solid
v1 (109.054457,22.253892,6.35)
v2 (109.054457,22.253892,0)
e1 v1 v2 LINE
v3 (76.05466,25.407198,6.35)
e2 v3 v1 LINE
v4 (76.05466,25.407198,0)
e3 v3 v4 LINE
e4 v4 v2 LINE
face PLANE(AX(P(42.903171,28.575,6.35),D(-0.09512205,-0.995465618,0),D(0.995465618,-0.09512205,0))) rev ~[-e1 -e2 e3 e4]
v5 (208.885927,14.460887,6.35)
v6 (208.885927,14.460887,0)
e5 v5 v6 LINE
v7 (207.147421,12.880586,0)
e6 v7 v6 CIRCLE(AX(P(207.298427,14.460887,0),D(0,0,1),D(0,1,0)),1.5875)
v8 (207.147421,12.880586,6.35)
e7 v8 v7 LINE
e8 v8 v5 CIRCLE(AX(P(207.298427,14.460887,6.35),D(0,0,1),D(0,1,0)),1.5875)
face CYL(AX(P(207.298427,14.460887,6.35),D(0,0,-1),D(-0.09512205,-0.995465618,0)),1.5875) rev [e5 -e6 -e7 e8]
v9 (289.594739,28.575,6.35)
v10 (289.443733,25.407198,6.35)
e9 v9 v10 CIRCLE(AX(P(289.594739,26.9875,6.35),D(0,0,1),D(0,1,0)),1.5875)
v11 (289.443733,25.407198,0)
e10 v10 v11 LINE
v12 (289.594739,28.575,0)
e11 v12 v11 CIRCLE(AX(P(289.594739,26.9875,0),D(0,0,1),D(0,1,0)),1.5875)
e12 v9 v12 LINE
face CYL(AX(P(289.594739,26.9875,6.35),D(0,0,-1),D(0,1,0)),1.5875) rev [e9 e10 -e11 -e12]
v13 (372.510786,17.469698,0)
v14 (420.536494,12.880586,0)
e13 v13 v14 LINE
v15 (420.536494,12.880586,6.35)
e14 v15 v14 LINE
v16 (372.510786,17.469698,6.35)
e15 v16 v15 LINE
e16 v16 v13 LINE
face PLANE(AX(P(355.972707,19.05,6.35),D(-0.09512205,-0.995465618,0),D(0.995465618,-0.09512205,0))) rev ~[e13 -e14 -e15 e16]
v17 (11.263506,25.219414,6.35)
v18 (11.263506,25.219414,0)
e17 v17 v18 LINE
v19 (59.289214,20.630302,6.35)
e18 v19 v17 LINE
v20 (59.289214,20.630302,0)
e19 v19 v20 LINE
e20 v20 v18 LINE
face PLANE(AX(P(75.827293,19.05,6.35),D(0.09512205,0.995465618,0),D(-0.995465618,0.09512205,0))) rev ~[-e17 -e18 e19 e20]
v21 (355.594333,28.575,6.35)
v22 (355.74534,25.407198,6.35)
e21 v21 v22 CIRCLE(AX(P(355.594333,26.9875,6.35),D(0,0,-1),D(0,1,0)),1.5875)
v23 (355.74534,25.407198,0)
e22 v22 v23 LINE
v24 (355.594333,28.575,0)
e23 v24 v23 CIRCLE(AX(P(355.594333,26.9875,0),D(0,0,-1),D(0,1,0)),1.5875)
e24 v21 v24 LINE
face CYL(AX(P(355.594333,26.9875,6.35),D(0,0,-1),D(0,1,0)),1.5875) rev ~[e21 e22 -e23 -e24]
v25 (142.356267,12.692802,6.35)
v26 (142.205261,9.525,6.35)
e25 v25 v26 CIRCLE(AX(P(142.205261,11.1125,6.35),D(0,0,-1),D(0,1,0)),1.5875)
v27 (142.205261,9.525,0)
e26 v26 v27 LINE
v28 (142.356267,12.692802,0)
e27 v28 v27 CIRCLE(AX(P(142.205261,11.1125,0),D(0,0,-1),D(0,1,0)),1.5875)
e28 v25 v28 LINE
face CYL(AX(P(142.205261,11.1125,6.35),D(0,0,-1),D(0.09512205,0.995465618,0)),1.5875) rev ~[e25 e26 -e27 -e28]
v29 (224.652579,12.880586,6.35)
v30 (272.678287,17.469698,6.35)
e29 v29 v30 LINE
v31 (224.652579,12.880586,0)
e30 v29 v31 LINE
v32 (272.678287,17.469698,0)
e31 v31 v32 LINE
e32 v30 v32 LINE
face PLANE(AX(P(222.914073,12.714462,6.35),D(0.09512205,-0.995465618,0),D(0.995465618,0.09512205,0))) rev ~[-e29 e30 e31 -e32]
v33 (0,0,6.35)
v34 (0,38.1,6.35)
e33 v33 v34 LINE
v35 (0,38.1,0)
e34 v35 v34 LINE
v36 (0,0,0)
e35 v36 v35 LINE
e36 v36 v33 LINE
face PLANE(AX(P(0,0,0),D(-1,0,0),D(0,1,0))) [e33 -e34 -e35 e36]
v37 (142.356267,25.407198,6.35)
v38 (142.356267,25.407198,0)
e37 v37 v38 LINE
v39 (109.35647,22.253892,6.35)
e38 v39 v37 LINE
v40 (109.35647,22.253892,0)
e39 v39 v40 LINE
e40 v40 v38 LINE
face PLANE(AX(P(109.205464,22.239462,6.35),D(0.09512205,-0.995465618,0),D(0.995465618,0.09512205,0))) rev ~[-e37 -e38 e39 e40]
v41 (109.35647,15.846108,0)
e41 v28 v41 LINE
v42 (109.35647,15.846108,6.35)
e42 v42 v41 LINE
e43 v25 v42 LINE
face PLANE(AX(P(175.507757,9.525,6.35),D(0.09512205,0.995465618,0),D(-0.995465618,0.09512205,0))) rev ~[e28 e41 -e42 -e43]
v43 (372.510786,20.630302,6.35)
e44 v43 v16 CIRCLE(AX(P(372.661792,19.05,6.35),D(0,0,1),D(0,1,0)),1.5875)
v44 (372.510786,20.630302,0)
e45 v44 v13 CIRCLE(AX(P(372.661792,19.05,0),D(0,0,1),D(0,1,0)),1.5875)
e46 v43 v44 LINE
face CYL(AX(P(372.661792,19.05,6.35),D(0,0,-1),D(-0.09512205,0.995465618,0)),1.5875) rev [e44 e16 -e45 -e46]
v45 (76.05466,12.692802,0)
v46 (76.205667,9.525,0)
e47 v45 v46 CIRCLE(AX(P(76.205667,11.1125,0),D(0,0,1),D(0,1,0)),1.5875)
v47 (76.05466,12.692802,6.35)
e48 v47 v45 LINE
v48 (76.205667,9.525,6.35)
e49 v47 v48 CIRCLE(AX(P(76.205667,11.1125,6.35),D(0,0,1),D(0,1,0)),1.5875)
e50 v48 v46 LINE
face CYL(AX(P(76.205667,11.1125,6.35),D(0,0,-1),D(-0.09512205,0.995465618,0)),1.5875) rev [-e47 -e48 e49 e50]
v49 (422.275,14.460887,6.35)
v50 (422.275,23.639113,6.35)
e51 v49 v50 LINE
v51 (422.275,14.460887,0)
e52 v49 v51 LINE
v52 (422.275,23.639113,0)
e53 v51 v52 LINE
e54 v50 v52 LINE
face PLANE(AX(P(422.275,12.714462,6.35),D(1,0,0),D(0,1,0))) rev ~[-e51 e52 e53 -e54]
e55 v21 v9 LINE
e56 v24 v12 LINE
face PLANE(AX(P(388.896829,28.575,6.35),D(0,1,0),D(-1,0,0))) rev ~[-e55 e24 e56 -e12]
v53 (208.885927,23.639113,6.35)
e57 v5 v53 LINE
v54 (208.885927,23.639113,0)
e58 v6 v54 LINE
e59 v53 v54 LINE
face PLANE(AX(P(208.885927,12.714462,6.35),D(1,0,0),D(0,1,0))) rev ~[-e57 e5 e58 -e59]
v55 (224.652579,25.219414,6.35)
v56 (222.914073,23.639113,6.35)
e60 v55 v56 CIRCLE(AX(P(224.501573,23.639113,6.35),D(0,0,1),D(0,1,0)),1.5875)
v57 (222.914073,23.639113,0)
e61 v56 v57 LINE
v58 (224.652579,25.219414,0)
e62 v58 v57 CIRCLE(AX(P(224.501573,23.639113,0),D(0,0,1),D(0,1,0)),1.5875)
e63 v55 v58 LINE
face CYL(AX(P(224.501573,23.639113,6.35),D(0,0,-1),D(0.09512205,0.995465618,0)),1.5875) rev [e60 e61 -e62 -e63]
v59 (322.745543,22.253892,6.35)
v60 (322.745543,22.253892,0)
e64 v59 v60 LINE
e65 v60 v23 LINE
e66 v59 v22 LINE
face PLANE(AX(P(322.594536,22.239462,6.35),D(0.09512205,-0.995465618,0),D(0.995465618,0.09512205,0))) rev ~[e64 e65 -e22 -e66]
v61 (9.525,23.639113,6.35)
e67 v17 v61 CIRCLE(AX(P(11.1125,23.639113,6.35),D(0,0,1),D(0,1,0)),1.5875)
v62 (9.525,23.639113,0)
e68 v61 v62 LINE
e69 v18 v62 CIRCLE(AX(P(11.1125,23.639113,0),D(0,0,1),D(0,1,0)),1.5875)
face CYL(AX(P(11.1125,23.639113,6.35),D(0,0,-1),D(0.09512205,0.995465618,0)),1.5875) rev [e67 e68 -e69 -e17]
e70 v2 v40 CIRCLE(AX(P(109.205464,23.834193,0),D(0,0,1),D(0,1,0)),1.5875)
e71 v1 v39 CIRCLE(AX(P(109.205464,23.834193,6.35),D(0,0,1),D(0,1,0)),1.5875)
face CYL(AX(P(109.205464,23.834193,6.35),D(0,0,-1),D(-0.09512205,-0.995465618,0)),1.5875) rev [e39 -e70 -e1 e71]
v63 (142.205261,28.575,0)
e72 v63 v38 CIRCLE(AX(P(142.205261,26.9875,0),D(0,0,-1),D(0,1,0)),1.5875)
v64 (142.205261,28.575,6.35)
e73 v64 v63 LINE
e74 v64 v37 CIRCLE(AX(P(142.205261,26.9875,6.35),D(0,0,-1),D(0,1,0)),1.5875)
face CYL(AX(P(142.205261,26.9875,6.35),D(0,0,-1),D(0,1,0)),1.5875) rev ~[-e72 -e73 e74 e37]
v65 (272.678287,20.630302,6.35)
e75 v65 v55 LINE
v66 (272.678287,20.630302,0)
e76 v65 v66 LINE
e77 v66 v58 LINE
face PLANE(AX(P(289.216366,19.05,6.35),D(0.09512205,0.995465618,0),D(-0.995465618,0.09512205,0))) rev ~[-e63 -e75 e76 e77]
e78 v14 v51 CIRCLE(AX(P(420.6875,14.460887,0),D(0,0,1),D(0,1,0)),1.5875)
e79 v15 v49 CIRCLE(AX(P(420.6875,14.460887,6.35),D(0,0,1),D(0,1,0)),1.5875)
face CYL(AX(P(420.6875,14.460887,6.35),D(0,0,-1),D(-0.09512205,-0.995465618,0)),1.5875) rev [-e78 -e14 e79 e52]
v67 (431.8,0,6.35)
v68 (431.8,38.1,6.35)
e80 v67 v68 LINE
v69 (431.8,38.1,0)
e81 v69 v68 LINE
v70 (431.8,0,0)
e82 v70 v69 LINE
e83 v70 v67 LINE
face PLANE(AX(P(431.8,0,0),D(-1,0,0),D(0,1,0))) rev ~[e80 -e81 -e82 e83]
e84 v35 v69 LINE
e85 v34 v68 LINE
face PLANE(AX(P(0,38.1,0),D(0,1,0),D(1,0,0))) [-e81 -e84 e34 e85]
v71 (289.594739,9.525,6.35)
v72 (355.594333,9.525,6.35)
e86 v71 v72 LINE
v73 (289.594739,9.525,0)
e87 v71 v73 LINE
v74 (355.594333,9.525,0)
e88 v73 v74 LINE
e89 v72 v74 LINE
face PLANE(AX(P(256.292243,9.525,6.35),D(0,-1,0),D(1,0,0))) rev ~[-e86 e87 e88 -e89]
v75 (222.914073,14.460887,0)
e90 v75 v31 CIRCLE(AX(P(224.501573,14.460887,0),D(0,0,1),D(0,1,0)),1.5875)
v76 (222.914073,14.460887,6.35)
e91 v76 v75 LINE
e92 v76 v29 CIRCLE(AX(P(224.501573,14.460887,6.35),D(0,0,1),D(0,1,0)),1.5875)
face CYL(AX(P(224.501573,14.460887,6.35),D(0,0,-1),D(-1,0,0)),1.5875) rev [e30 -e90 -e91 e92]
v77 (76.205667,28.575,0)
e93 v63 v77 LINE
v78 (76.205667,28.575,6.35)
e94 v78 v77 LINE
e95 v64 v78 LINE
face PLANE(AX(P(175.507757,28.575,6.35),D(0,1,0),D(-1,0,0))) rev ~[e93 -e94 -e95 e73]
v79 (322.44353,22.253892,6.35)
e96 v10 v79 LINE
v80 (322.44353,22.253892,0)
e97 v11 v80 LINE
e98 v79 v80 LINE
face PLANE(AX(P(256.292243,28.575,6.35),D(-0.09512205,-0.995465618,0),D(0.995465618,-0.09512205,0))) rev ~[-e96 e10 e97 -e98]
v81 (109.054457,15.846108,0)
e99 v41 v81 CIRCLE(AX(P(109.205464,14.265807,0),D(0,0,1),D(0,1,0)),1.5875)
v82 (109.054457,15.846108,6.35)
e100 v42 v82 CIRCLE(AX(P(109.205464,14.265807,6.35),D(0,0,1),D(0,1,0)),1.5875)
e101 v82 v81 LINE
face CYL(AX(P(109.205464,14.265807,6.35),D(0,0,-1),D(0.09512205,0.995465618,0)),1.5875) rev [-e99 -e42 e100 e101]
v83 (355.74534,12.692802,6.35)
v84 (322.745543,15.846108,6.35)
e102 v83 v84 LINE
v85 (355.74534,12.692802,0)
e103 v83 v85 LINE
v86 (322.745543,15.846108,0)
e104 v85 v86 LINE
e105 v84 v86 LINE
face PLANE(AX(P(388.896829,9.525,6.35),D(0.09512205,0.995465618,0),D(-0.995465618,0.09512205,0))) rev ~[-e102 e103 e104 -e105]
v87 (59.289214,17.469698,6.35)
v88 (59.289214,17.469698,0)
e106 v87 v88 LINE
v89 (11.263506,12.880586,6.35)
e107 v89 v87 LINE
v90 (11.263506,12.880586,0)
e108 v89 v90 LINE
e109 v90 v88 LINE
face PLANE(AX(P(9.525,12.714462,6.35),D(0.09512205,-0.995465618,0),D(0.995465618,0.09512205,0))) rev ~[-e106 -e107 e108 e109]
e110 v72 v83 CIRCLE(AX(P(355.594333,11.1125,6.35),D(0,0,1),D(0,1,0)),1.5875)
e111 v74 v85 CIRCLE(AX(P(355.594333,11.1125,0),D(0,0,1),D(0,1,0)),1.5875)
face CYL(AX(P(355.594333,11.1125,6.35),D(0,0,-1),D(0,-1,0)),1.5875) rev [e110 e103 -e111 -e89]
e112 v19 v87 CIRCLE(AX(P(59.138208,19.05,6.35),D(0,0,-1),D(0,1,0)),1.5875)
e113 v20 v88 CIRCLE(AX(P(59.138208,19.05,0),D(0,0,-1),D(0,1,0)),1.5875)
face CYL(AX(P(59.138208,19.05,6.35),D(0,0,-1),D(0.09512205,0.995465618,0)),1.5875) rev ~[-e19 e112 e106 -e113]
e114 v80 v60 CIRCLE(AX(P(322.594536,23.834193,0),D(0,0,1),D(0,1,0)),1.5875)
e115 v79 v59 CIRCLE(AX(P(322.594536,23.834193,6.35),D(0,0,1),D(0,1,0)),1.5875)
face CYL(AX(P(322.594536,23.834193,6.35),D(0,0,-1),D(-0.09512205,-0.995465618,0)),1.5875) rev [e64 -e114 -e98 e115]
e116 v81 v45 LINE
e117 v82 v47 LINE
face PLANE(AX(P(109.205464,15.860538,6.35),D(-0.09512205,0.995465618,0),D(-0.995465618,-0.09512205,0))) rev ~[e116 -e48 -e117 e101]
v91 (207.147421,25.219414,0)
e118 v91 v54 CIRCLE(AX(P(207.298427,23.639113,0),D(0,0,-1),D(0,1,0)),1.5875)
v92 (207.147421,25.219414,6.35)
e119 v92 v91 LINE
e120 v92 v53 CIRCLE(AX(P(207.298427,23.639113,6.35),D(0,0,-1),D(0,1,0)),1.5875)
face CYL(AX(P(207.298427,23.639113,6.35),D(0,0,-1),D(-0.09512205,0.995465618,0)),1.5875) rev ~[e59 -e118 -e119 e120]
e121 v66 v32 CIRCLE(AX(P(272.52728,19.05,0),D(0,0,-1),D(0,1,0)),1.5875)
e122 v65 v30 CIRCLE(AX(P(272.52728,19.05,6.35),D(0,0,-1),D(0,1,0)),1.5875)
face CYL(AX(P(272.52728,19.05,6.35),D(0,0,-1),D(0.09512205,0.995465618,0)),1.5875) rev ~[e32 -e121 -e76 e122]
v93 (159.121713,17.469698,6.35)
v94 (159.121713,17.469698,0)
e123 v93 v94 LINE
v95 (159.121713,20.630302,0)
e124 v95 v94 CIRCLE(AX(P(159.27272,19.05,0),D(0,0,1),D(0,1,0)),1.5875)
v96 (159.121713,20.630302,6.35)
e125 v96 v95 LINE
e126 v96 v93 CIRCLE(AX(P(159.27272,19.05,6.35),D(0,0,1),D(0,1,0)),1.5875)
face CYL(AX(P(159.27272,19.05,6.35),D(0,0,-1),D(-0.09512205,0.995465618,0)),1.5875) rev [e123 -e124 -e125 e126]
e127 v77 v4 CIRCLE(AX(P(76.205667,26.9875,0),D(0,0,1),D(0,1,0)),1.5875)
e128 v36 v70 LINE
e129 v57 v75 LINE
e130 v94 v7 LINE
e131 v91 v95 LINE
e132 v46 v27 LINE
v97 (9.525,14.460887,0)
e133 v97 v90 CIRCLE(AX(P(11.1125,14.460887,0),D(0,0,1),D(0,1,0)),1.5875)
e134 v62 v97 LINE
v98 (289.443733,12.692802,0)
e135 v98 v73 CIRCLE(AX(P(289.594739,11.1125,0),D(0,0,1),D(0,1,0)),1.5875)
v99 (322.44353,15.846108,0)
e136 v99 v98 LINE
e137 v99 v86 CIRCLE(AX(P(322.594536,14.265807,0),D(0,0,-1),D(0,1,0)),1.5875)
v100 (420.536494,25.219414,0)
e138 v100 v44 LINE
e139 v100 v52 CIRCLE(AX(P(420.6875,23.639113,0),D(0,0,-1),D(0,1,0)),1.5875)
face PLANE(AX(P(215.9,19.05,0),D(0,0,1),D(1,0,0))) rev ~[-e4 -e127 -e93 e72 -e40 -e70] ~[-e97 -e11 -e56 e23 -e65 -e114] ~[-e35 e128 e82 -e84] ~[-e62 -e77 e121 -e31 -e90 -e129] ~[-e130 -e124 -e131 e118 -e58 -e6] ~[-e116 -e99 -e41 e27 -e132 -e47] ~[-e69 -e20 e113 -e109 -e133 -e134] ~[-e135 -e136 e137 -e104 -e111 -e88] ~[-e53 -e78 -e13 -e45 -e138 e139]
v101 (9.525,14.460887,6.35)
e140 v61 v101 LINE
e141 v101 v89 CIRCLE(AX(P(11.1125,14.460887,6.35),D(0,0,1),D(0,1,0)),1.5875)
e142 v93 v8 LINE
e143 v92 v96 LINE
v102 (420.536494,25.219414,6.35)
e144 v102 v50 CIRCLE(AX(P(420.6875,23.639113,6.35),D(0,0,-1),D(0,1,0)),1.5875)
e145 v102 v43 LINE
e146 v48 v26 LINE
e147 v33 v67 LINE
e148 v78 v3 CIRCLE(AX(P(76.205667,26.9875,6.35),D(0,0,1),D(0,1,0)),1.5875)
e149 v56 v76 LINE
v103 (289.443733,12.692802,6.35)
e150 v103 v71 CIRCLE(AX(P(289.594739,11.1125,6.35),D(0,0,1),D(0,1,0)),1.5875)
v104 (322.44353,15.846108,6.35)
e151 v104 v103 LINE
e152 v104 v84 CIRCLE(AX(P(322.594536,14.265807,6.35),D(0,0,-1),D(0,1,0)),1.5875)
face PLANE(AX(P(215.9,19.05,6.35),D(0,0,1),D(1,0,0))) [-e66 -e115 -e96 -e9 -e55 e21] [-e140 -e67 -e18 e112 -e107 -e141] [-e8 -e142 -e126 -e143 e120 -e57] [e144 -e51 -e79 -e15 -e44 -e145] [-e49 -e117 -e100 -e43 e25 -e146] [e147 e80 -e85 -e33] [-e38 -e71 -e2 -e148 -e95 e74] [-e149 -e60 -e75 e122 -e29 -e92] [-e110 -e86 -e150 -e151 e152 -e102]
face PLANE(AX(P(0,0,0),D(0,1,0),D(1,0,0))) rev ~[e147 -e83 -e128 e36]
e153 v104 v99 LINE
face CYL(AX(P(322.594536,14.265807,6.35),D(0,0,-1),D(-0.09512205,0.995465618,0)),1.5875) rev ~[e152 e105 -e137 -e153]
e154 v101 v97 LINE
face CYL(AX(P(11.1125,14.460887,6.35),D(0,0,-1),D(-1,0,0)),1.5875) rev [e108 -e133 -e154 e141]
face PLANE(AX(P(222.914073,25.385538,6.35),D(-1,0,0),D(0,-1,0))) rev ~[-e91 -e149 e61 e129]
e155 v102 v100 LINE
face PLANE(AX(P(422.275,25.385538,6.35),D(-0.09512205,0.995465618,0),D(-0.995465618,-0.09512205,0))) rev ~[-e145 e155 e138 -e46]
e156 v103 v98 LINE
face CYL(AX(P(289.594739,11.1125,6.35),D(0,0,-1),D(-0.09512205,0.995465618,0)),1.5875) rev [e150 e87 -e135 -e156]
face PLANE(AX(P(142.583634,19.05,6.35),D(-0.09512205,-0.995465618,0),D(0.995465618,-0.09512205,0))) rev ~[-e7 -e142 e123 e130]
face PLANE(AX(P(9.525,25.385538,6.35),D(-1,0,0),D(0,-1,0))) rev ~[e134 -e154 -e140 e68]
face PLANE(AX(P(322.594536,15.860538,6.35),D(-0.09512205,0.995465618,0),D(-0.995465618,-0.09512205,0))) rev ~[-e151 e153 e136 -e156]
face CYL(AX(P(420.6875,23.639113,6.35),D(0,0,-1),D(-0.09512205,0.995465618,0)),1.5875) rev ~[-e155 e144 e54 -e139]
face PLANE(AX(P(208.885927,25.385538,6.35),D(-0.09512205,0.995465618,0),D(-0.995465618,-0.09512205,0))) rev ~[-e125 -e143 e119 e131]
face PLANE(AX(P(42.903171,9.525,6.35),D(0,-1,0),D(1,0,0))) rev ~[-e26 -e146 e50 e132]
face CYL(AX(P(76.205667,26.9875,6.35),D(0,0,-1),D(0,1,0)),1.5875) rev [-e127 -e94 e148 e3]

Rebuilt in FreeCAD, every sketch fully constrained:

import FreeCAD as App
import Part
import Sketcher
from FreeCAD import Vector
Q = App.Units.Quantity


def edges_at(feature, points):
    """Names of the edges that pass closest to the given points."""
    edges = feature.Shape.Edges
    near = lambda p: min(range(len(edges)), key=lambda i: edges[i].distToShape(Part.Vertex(*p))[0])
    return sorted({f"Edge{near(p) + 1}" for p in points})


def add_polygon(sketch, points):
    """Adds a closed chain of lines whose ends are joined by coincident constraints."""
    first, n = sketch.GeometryCount, len(points)
    for a, b in zip(points, points[1:] + points[:1]):
        sketch.addGeometry(Part.LineSegment(App.Vector(*a, 0), App.Vector(*b, 0)), False)
    for i in range(n):
        sketch.addConstraint(Sketcher.Constraint("Coincident", first + i, 2, first + (i + 1) % n, 1))

doc = App.newDocument("Part")
body = doc.addObject("PartDesign::Body", "Body")

# Sketch on XY plane
sketch1 = body.newObject("Sketcher::SketchObject", "Sketch")
sketch1.AttachmentSupport = (doc.getObject("XY_Plane"), [""])
sketch1.MapMode = "FlatFace"
add_polygon(sketch1, [(0, 38), (0, 0), (432, 0), (432, 38)])  # lines 0-3
sketch1.addConstraint(Sketcher.Constraint("Vertical", 0))
sketch1.addConstraint(Sketcher.Constraint("Horizontal", 1))
sketch1.addConstraint(Sketcher.Constraint("Vertical", 2))
sketch1.addConstraint(Sketcher.Constraint("Horizontal", 3))
sketch1.addConstraint(Sketcher.Constraint("Coincident", 0, 2, -1, 1))
sketch1.addConstraint(Sketcher.Constraint("DistanceX", 1, 1, 1, 2, Q("17 in")))
sketch1.addConstraint(Sketcher.Constraint("DistanceY", 0, 2, 0, 1, Q("1.5 in")))
pad1 = body.newObject("PartDesign::Pad", "Pad")
pad1.Profile = sketch1
pad1.Length = Q("0.25 in")

# Sketch on XY plane
sketch2 = body.newObject("Sketcher::SketchObject", "Sketch001")
sketch2.AttachmentSupport = (doc.getObject("XY_Plane"), [""])
sketch2.MapMode = "FlatFace"
sketch2.AttachmentOffset = App.Placement(Vector(0, 0, 0.25 * 25.4), App.Rotation())
add_polygon(sketch2, [(76, 19), (10, 25), (10, 13)])  # lines 0-2
add_polygon(sketch2, [(176, 29), (43, 29), (109, 22)])  # lines 3-5
add_polygon(sketch2, [(176, 10), (109, 16), (43, 10)])  # lines 6-8
add_polygon(sketch2, [(209, 25), (143, 19), (209, 13)])  # lines 9-11
add_polygon(sketch2, [(289, 19), (223, 25), (223, 13)])  # lines 12-14
add_polygon(sketch2, [(389, 29), (256, 29), (323, 22)])  # lines 15-17
add_polygon(sketch2, [(323, 16), (256, 10), (389, 10)])  # lines 18-20
add_polygon(sketch2, [(422, 25), (356, 19), (422, 13)])  # lines 21-23
sketch2.addConstraint(Sketcher.Constraint("Vertical", 1))
sketch2.addConstraint(Sketcher.Constraint("Horizontal", 3))
sketch2.addConstraint(Sketcher.Constraint("Horizontal", 8))
sketch2.addConstraint(Sketcher.Constraint("Vertical", 11))
sketch2.addConstraint(Sketcher.Constraint("Vertical", 13))
sketch2.addConstraint(Sketcher.Constraint("Horizontal", 15))
sketch2.addConstraint(Sketcher.Constraint("Horizontal", 19))
sketch2.addConstraint(Sketcher.Constraint("Vertical", 23))
sketch2.addConstraint(Sketcher.Constraint("Parallel", 0, 4))
sketch2.addConstraint(Sketcher.Constraint("Parallel", 2, 5))
sketch2.addConstraint(Sketcher.Constraint("Parallel", 4, 6))
sketch2.addConstraint(Sketcher.Constraint("Parallel", 5, 7))
sketch2.addConstraint(Sketcher.Constraint("Parallel", 7, 9))
sketch2.addConstraint(Sketcher.Constraint("Parallel", 6, 10))
sketch2.addConstraint(Sketcher.Constraint("Parallel", 10, 12))
sketch2.addConstraint(Sketcher.Constraint("Parallel", 9, 14))
sketch2.addConstraint(Sketcher.Constraint("Parallel", 12, 16))
sketch2.addConstraint(Sketcher.Constraint("Parallel", 14, 17))
sketch2.addConstraint(Sketcher.Constraint("Parallel", 17, 18))
sketch2.addConstraint(Sketcher.Constraint("Parallel", 16, 20))
sketch2.addConstraint(Sketcher.Constraint("Parallel", 18, 21))
sketch2.addConstraint(Sketcher.Constraint("Parallel", 20, 22))
sketch2.addConstraint(Sketcher.Constraint("Horizontal", 2, 2, 9, 2))
sketch2.addConstraint(Sketcher.Constraint("Horizontal", 1, 2, 10, 2))
sketch2.addConstraint(Sketcher.Constraint("Horizontal", 0, 2, 11, 2))
sketch2.addConstraint(Sketcher.Constraint("Horizontal", 11, 2, 12, 2))
sketch2.addConstraint(Sketcher.Constraint("Horizontal", 10, 2, 13, 2))
sketch2.addConstraint(Sketcher.Constraint("Horizontal", 5, 2, 15, 2))
sketch2.addConstraint(Sketcher.Constraint("Horizontal", 4, 2, 16, 2))
sketch2.addConstraint(Sketcher.Constraint("Horizontal", 8, 2, 18, 2))
sketch2.addConstraint(Sketcher.Constraint("Horizontal", 6, 2, 20, 2))
sketch2.addConstraint(Sketcher.Constraint("Horizontal", 14, 2, 21, 2))
sketch2.addConstraint(Sketcher.Constraint("Horizontal", 13, 2, 22, 2))
sketch2.addConstraint(Sketcher.Constraint("Vertical", 4, 2, 6, 2))
sketch2.addConstraint(Sketcher.Constraint("Vertical", 3, 2, 7, 2))
sketch2.addConstraint(Sketcher.Constraint("Vertical", 15, 2, 18, 2))
sketch2.addConstraint(Sketcher.Constraint("Equal", 2, 4))
sketch2.addConstraint(Sketcher.Constraint("DistanceY", -1, 1, 2, 2, Q("0.75 in")))
sketch2.addConstraint(Sketcher.Constraint("DistanceY", 7, 2, 3, 2, Q("0.75 in")))
sketch2.addConstraint(Sketcher.Constraint("DistanceX", -1, 1, 0, 2, Q("0.375 in")))
sketch2.addConstraint(Sketcher.Constraint("DistanceY", -1, 1, 3, 2, Q("1.125 in")))
sketch2.addConstraint(Sketcher.Constraint("DistanceX", -1, 1, 22, 2, Q("16.625 in")))
sketch2.addConstraint(Sketcher.Constraint("DistanceX", 3, 2, 3, 1, Q("132.604586 mm")))
sketch2.addConstraint(Sketcher.Constraint("DistanceY", 1, 2, 1, 1, Q("12.671076 mm")))
sketch2.addConstraint(Sketcher.Constraint("DistanceX", -1, 1, 3, 2, Q("42.903171 mm")))
sketch2.addConstraint(Sketcher.Constraint("DistanceX", -1, 1, 17, 2, Q("388.896829 mm")))
sketch2.addConstraint(Sketcher.Constraint("DistanceX", 4, 2, 9, 2, Q("33.378171 mm")))
sketch2.addConstraint(Sketcher.Constraint("DistanceX", 9, 2, 12, 2, Q("80.330438 mm")))
pocket1 = body.newObject("PartDesign::Pocket", "Pocket")
pocket1.Profile = sketch2
pocket1.Type = "ThroughAll"
doc.recompute()

fillet = body.newObject("PartDesign::Fillet", "Fillet")
fillet.Base = (pocket1, edges_at(pocket1, [
    (289.216, 19.05, 3.175),
    (222.914, 12.714, 3.175),
    (222.914, 25.386, 3.175),
    (142.584, 19.05, 3.175),
    (208.886, 25.386, 3.175),
    (208.886, 12.714, 3.175),
    (42.903, 9.525, 3.175),
    (109.205, 15.861, 3.175),
    (175.508, 9.525, 3.175),
    (109.205, 22.239, 3.175),
    (42.903, 28.575, 3.175),
    (175.508, 28.575, 3.175),
    (422.275, 25.386, 3.175),
    (422.275, 12.714, 3.175),
    (355.973, 19.05, 3.175),
    (322.595, 15.861, 3.175),
    (388.897, 9.525, 3.175),
    (256.292, 9.525, 3.175),
    (388.897, 28.575, 3.175),
    (322.595, 22.239, 3.175),
    (256.292, 28.575, 3.175),
    (9.525, 12.714, 3.175),
    (9.525, 25.386, 3.175),
    (75.827, 19.05, 3.175),
]))
fillet.Radius = Q("0.0625 in")

doc.recompute()
